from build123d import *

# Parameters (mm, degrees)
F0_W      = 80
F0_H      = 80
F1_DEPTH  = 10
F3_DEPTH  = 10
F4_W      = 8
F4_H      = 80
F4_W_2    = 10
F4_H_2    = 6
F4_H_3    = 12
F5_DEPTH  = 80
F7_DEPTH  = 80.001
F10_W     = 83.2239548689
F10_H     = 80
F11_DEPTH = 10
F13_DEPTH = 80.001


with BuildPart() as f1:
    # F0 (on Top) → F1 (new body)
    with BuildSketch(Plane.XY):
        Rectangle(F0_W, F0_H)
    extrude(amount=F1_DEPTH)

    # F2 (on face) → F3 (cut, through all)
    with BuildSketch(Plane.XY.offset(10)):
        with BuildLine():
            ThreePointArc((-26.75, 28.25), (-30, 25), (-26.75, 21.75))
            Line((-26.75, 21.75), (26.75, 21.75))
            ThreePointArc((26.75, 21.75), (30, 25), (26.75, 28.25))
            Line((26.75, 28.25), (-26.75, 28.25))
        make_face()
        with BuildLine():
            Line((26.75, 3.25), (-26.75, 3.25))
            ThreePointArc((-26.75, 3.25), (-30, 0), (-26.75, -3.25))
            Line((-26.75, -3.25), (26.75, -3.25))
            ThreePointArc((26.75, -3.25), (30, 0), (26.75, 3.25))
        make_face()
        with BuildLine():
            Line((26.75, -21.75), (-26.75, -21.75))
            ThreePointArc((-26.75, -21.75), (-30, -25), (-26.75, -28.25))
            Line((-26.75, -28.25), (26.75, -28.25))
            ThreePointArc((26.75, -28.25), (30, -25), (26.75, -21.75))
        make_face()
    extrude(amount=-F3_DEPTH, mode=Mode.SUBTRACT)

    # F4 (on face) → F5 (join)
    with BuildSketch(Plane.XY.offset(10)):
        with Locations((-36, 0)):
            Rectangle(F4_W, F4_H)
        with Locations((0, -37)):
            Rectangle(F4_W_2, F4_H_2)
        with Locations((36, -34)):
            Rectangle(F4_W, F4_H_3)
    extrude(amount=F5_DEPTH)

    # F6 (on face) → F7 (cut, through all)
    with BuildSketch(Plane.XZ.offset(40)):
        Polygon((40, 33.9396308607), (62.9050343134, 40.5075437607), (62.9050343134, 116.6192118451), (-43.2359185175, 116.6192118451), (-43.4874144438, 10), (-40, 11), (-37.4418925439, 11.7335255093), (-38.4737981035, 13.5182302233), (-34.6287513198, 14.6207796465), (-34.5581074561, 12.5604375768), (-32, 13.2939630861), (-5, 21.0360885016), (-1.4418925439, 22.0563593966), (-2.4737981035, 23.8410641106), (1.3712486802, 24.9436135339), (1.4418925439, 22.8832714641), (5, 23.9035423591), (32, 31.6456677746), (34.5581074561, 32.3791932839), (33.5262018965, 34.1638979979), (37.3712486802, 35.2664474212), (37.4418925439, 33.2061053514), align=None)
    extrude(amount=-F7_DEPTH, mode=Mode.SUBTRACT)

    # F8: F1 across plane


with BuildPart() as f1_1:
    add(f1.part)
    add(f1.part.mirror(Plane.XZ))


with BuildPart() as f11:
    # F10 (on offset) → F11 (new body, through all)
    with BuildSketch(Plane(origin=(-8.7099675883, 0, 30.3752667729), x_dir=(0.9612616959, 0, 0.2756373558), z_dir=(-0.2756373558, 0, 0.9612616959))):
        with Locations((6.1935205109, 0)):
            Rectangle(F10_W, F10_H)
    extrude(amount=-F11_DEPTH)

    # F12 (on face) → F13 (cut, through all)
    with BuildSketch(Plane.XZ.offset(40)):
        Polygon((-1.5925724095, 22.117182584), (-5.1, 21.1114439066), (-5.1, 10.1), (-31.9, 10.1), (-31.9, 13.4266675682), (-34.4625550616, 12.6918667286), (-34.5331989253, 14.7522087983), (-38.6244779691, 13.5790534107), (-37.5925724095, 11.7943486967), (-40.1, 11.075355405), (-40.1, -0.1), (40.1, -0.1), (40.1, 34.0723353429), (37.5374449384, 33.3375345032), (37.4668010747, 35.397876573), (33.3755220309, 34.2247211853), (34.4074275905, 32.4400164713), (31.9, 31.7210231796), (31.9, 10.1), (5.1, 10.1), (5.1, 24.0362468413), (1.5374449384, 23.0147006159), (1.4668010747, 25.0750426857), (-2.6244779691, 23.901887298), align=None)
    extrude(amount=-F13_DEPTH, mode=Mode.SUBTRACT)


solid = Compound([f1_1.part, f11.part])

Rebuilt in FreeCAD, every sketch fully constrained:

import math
import FreeCAD as App
import Part
import Sketcher
from FreeCAD import Vector
Q = App.Units.Quantity


def add_polygon(sketch, points):
    """Adds a closed chain of lines whose ends are joined by coincident constraints."""
    first, n = sketch.GeometryCount, len(points)
    for a, b in zip(points, points[1:] + points[:1]):
        sketch.addGeometry(Part.LineSegment(App.Vector(*a, 0), App.Vector(*b, 0)), False)
    for i in range(n):
        sketch.addConstraint(Sketcher.Constraint("Coincident", first + i, 2, first + (i + 1) % n, 1))

doc = App.newDocument("Part")
body = doc.addObject("PartDesign::Body", "Body")

sketch1 = body.newObject("Sketcher::SketchObject", "Sketch")
sketch1.AttachmentSupport = (doc.getObject("XY_Plane"), [""])
sketch1.MapMode = "FlatFace"
add_polygon(sketch1, [(-40, 40), (-40, -40), (40, -40), (40, 40)])
sketch1.addConstraint(Sketcher.Constraint("Vertical", 0))
sketch1.addConstraint(Sketcher.Constraint("Horizontal", 1))
sketch1.addConstraint(Sketcher.Constraint("Vertical", 2))
sketch1.addConstraint(Sketcher.Constraint("Horizontal", 3))
sketch1.addConstraint(Sketcher.Constraint("Symmetric", 0, 2, 2, 2, -1, 1))
sketch1.addConstraint(Sketcher.Constraint("Equal", 3, 0))
sketch1.addConstraint(Sketcher.Constraint("DistanceX", 1, 1, 1, 2, 80.0))
pad1 = body.newObject("PartDesign::Pad", "Pad")
pad1.Profile = sketch1
pad1.Length = 10

sketch2 = body.newObject("Sketcher::SketchObject", "Sketch001")
sketch2.AttachmentSupport = (doc.getObject("XY_Plane"), [""])
sketch2.MapMode = "FlatFace"
sketch2.AttachmentOffset = App.Placement(Vector(0, 0, 10), App.Rotation())
sketch2.addGeometry(Part.ArcOfCircle(Part.Circle(Vector(-26.8, 25, 0), Vector(0, 0, 1), 3.2), math.radians(90), math.radians(270)), False)
sketch2.addGeometry(Part.LineSegment(Vector(-26.8, 21.8, 0), Vector(26.8, 21.8, 0)), False)
sketch2.addGeometry(Part.ArcOfCircle(Part.Circle(Vector(26.8, 25, 0), Vector(0, 0, 1), 3.2), math.radians(-90), math.radians(90)), False)
sketch2.addGeometry(Part.LineSegment(Vector(26.8, 28.2, 0), Vector(-26.8, 28.2, 0)), False)
sketch2.addGeometry(Part.LineSegment(Vector(26.8, 3.2, 0), Vector(-26.8, 3.2, 0)), False)
sketch2.addGeometry(Part.ArcOfCircle(Part.Circle(Vector(-26.8, 0, 0), Vector(0, 0, 1), 3.2), math.radians(90), math.radians(270)), False)
sketch2.addGeometry(Part.LineSegment(Vector(-26.8, -3.2, 0), Vector(26.8, -3.2, 0)), False)
sketch2.addGeometry(Part.ArcOfCircle(Part.Circle(Vector(26.8, 0, 0), Vector(0, 0, 1), 3.2), math.radians(-90), math.radians(90)), False)
sketch2.addGeometry(Part.LineSegment(Vector(26.8, -21.8, 0), Vector(-26.8, -21.8, 0)), False)
sketch2.addGeometry(Part.ArcOfCircle(Part.Circle(Vector(-26.8, -25, 0), Vector(0, 0, 1), 3.2), math.radians(90), math.radians(270)), False)
sketch2.addGeometry(Part.LineSegment(Vector(-26.8, -28.2, 0), Vector(26.8, -28.2, 0)), False)
sketch2.addGeometry(Part.ArcOfCircle(Part.Circle(Vector(26.8, -25, 0), Vector(0, 0, 1), 3.2), math.radians(-90), math.radians(90)), False)
sketch2.addConstraint(Sketcher.Constraint("Tangent", 0, 2, 1, 1))
sketch2.addConstraint(Sketcher.Constraint("Tangent", 1, 2, 2, 1))
sketch2.addConstraint(Sketcher.Constraint("Tangent", 2, 2, 3, 1))
sketch2.addConstraint(Sketcher.Constraint("Tangent", 3, 2, 0, 1))
sketch2.addConstraint(Sketcher.Constraint("Tangent", 4, 2, 5, 1))
sketch2.addConstraint(Sketcher.Constraint("Tangent", 5, 2, 6, 1))
sketch2.addConstraint(Sketcher.Constraint("Tangent", 6, 2, 7, 1))
sketch2.addConstraint(Sketcher.Constraint("Tangent", 7, 2, 4, 1))
sketch2.addConstraint(Sketcher.Constraint("Tangent", 8, 2, 9, 1))
sketch2.addConstraint(Sketcher.Constraint("Tangent", 9, 2, 10, 1))
sketch2.addConstraint(Sketcher.Constraint("Tangent", 10, 2, 11, 1))
sketch2.addConstraint(Sketcher.Constraint("Tangent", 11, 2, 8, 1))
sketch2.addConstraint(Sketcher.Constraint("Horizontal", 1))
sketch2.addConstraint(Sketcher.Constraint("Horizontal", 3))
sketch2.addConstraint(Sketcher.Constraint("Horizontal", 4))
sketch2.addConstraint(Sketcher.Constraint("Horizontal", 6))
sketch2.addConstraint(Sketcher.Constraint("Horizontal", 8))
sketch2.addConstraint(Sketcher.Constraint("Horizontal", 10))
sketch2.addConstraint(Sketcher.Constraint("Equal", 2, 5))
sketch2.addConstraint(Sketcher.Constraint("Equal", 7, 9))
sketch2.addConstraint(Sketcher.Constraint("Symmetric", 5, 3, 7, 3, -1, 1))
sketch2.addConstraint(Sketcher.Constraint("Symmetric", 2, 3, 9, 3, -1, 1))
sketch2.addConstraint(Sketcher.Constraint("Vertical", 0, 3, 5, 3))
sketch2.addConstraint(Sketcher.Constraint("Vertical", 2, 3, 7, 3))
sketch2.addConstraint(Sketcher.Constraint("Vertical", 7, 3, 11, 3))
sketch2.addConstraint(Sketcher.Constraint("Radius", 0, 3.25))
sketch2.addConstraint(Sketcher.Constraint("DistanceX", 1, 1, 1, 2, 53.5))
sketch2.addConstraint(Sketcher.Constraint("DistanceY", -1, 1, 0, 3, 25.0))
pocket1 = body.newObject("PartDesign::Pocket", "Pocket")
pocket1.Profile = sketch2
pocket1.Type = "ThroughAll"

sketch3 = body.newObject("Sketcher::SketchObject", "Sketch002")
sketch3.AttachmentSupport = (doc.getObject("XY_Plane"), [""])
sketch3.MapMode = "FlatFace"
sketch3.AttachmentOffset = App.Placement(Vector(0, 0, 10), App.Rotation())
add_polygon(sketch3, [(-40, 40), (-40, -40), (-32, -40), (-32, 40)])
add_polygon(sketch3, [(-5, -34), (-5, -40), (5, -40), (5, -34)])
add_polygon(sketch3, [(32, -28), (32, -40), (40, -40), (40, -28)])
sketch3.addConstraint(Sketcher.Constraint("Vertical", 0))
sketch3.addConstraint(Sketcher.Constraint("Horizontal", 1))
sketch3.addConstraint(Sketcher.Constraint("Vertical", 2))
sketch3.addConstraint(Sketcher.Constraint("Horizontal", 3))
sketch3.addConstraint(Sketcher.Constraint("Vertical", 4))
sketch3.addConstraint(Sketcher.Constraint("Horizontal", 5))
sketch3.addConstraint(Sketcher.Constraint("Vertical", 6))
sketch3.addConstraint(Sketcher.Constraint("Horizontal", 7))
sketch3.addConstraint(Sketcher.Constraint("Vertical", 8))
sketch3.addConstraint(Sketcher.Constraint("Horizontal", 9))
sketch3.addConstraint(Sketcher.Constraint("Vertical", 10))
sketch3.addConstraint(Sketcher.Constraint("Horizontal", 11))
sketch3.addConstraint(Sketcher.Constraint("Symmetric", 2, 2, 8, 2, -1, 1))
sketch3.addConstraint(Sketcher.Constraint("Symmetric", 0, 2, 9, 2, -2))
sketch3.addConstraint(Sketcher.Constraint("Horizontal", 1, 2, 4, 2))
sketch3.addConstraint(Sketcher.Constraint("DistanceX", 1, 1, 1, 2, 8.0))
sketch3.addConstraint(Sketcher.Constraint("DistanceX", 5, 1, 5, 2, 10.0))
sketch3.addConstraint(Sketcher.Constraint("DistanceY", 0, 2, 0, 1, 80.0))
sketch3.addConstraint(Sketcher.Constraint("DistanceY", 4, 2, 4, 1, 6.0))
sketch3.addConstraint(Sketcher.Constraint("DistanceY", 8, 2, 8, 1, 12.0))
sketch3.addConstraint(Sketcher.Constraint("DistanceX", 0, 2, -1, 1, 40.0))
sketch3.addConstraint(Sketcher.Constraint("DistanceX", 4, 2, -1, 1, 5.0))
pad2 = body.newObject("PartDesign::Pad", "Pad001")
pad2.Profile = sketch3
pad2.Length = 80

sketch4 = body.newObject("Sketcher::SketchObject", "Sketch003")
sketch4.AttachmentSupport = (doc.getObject("XZ_Plane"), [""])
sketch4.MapMode = "FlatFace"
sketch4.AttachmentOffset = App.Placement(Vector(0, 0, 40), App.Rotation())
add_polygon(sketch4, [(40, 33.9), (62.9, 40.5), (62.9, 116.6), (-43.2, 116.6), (-43.5, 10), (-40, 11), (-37.4, 11.7), (-38.5, 13.5), (-34.6, 14.6), (-34.6, 12.6), (-32, 13.3), (-5, 21), (-1.4, 22.1), (-2.5, 23.8), (1.4, 24.9), (1.4, 22.9), (5, 23.9), (32, 31.6), (34.6, 32.4), (33.5, 34.2), (37.4, 35.3), (37.4, 33.2)])
sketch4.addConstraint(Sketcher.Constraint("Vertical", 1))
sketch4.addConstraint(Sketcher.Constraint("Horizontal", 2))
sketch4.addConstraint(Sketcher.Constraint("Parallel", 0, 4))
sketch4.addConstraint(Sketcher.Constraint("Parallel", 4, 5))
sketch4.addConstraint(Sketcher.Constraint("Parallel", 5, 7))
sketch4.addConstraint(Sketcher.Constraint("Parallel", 7, 9))
sketch4.addConstraint(Sketcher.Constraint("Parallel", 9, 10))
sketch4.addConstraint(Sketcher.Constraint("Parallel", 10, 11))
sketch4.addConstraint(Sketcher.Constraint("Parallel", 6, 12))
sketch4.addConstraint(Sketcher.Constraint("Parallel", 11, 13))
sketch4.addConstraint(Sketcher.Constraint("Parallel", 8, 14))
sketch4.addConstraint(Sketcher.Constraint("Parallel", 13, 15))
sketch4.addConstraint(Sketcher.Constraint("Parallel", 15, 16))
sketch4.addConstraint(Sketcher.Constraint("Parallel", 16, 17))
sketch4.addConstraint(Sketcher.Constraint("Parallel", 12, 18))
sketch4.addConstraint(Sketcher.Constraint("Parallel", 17, 19))
sketch4.addConstraint(Sketcher.Constraint("Parallel", 14, 20))
sketch4.addConstraint(Sketcher.Constraint("Parallel", 19, 21))
sketch4.addConstraint(Sketcher.Constraint("Equal", 6, 8))
sketch4.addConstraint(Sketcher.Constraint("Equal", 5, 9))
sketch4.addConstraint(Sketcher.Constraint("Equal", 8, 12))
sketch4.addConstraint(Sketcher.Constraint("Equal", 7, 13))
sketch4.addConstraint(Sketcher.Constraint("Equal", 12, 14))
sketch4.addConstraint(Sketcher.Constraint("Equal", 11, 15))
sketch4.addConstraint(Sketcher.Constraint("Equal", 10, 16))
sketch4.addConstraint(Sketcher.Constraint("Equal", 9, 17))
sketch4.addConstraint(Sketcher.Constraint("Equal", 14, 18))
sketch4.addConstraint(Sketcher.Constraint("Equal", 13, 19))
sketch4.addConstraint(Sketcher.Constraint("Equal", 18, 20))
sketch4.addConstraint(Sketcher.Constraint("Equal", 17, 21))
sketch4.addConstraint(Sketcher.Constraint("Angle", 0, Q("16 deg")))
sketch4.addConstraint(Sketcher.Constraint("Distance", 7, 4.0))
sketch4.addConstraint(Sketcher.Constraint("DistanceY", -1, 1, 3, 2, 10.0))
sketch4.addConstraint(Sketcher.Constraint("DistanceX", 4, 2, -1, 1, 40.0))
sketch4.addConstraint(Sketcher.Constraint("DistanceY", -1, 1, 4, 2, 11.0))
sketch4.addConstraint(Sketcher.Constraint("DistanceX", 9, 2, -1, 1, 32.0))
sketch4.addConstraint(Sketcher.Constraint("DistanceX", 10, 2, -1, 1, 5.0))
sketch4.addConstraint(Sketcher.Constraint("DistanceX", -1, 1, 15, 2, 5.0))
sketch4.addConstraint(Sketcher.Constraint("DistanceY", 1, 1, 1, 2, 76.111668))
sketch4.addConstraint(Sketcher.Constraint("DistanceX", 6, 2, -1, 1, 38.473798))
sketch4.addConstraint(Sketcher.Constraint("DistanceY", 9, 2, 12, 2, 10.547101))
sketch4.addConstraint(Sketcher.Constraint("Distance", 3, 106.619508))
sketch4.addConstraint(Sketcher.Constraint("DistanceX", 2, 2, 2, 1, 106.140953))
sketch4.addConstraint(Sketcher.Constraint("DistanceY", -1, 1, 11, 2, 22.056359))
pocket2 = body.newObject("PartDesign::Pocket", "Pocket001")
pocket2.Profile = sketch4
pocket2.Type = "ThroughAll"
body2 = doc.addObject("PartDesign::Body", "Body001")
doc.recompute()

body2.BaseFeature = body
doc.recompute()

mirroring = doc.addObject("Part::Mirroring", "Mirroring")
mirroring.Source = body
mirroring.Base = Vector(0, 0, 0)
mirroring.Normal = Vector(0, -1, 0)
body3 = doc.addObject("PartDesign::Body", "Body002")
body3.BaseFeature = mirroring
boolean = body2.newObject("PartDesign::Boolean", "Boolean")
boolean.Type = "Fuse"
boolean.addObjects([body3])
doc.recompute()
body4 = doc.addObject("PartDesign::Body", "Body003")

sketch5 = body4.newObject("Sketcher::SketchObject", "Sketch004")
sketch5.Placement = App.Placement(Vector(-8.709968, 0, 30.375267), App.Rotation(Vector(0.961261696, 0, 0.275637356), Vector(0, 1, 0), Vector(-0.275637356, 0, 0.961261696), "ZXY"))
add_polygon(sketch5, [(-35, 40), (-35, -40), (48, -40), (48, 40)])
sketch5.addConstraint(Sketcher.Constraint("Vertical", 0))
sketch5.addConstraint(Sketcher.Constraint("Horizontal", 1))
sketch5.addConstraint(Sketcher.Constraint("Vertical", 2))
sketch5.addConstraint(Sketcher.Constraint("Horizontal", 3))
sketch5.addConstraint(Sketcher.Constraint("DistanceY", 0, 2, 0, 1, 80.0))
sketch5.addConstraint(Sketcher.Constraint("DistanceY", 0, 2, -1, 1, 40.0))
sketch5.addConstraint(Sketcher.Constraint("DistanceX", 1, 1, 1, 2, 83.223955))
sketch5.addConstraint(Sketcher.Constraint("DistanceX", 0, 2, -1, 1, 35.418457))
pad3 = body4.newObject("PartDesign::Pad", "Pad002")
pad3.Profile = sketch5
pad3.Length = 10
pad3.Reversed = True

sketch6 = body4.newObject("Sketcher::SketchObject", "Sketch005")
sketch6.AttachmentSupport = (doc.getObject("XZ_Plane003"), [""])
sketch6.MapMode = "FlatFace"
sketch6.AttachmentOffset = App.Placement(Vector(0, 0, 40), App.Rotation())
add_polygon(sketch6, [(-1.6, 22.1), (-5.1, 21.1), (-5.1, 10.1), (-31.9, 10.1), (-31.9, 13.4), (-34.5, 12.7), (-34.5, 14.8), (-38.6, 13.6), (-37.6, 11.8), (-40.1, 11.1), (-40.1, -0.1), (40.1, -0.1), (40.1, 34.1), (37.5, 33.3), (37.5, 35.4), (33.4, 34.2), (34.4, 32.4), (31.9, 31.7), (31.9, 10.1), (5.1, 10.1), (5.1, 24), (1.5, 23), (1.5, 25.1), (-2.6, 23.9)])
sketch6.addConstraint(Sketcher.Constraint("Vertical", 1))
sketch6.addConstraint(Sketcher.Constraint("Horizontal", 2))
sketch6.addConstraint(Sketcher.Constraint("Vertical", 3))
sketch6.addConstraint(Sketcher.Constraint("Vertical", 9))
sketch6.addConstraint(Sketcher.Constraint("Horizontal", 10))
sketch6.addConstraint(Sketcher.Constraint("Vertical", 11))
sketch6.addConstraint(Sketcher.Constraint("Vertical", 17))
sketch6.addConstraint(Sketcher.Constraint("Horizontal", 18))
sketch6.addConstraint(Sketcher.Constraint("Vertical", 19))
sketch6.addConstraint(Sketcher.Constraint("Symmetric", 2, 2, 17, 2, -2))
sketch6.addConstraint(Sketcher.Constraint("Parallel", 0, 4))
sketch6.addConstraint(Sketcher.Constraint("Parallel", 4, 6))
sketch6.addConstraint(Sketcher.Constraint("Parallel", 6, 8))
sketch6.addConstraint(Sketcher.Constraint("Parallel", 8, 12))
sketch6.addConstraint(Sketcher.Constraint("Parallel", 5, 13))
sketch6.addConstraint(Sketcher.Constraint("Parallel", 12, 14))
sketch6.addConstraint(Sketcher.Constraint("Parallel", 7, 15))
sketch6.addConstraint(Sketcher.Constraint("Parallel", 14, 16))
sketch6.addConstraint(Sketcher.Constraint("Parallel", 16, 20))
sketch6.addConstraint(Sketcher.Constraint("Parallel", 13, 21))
sketch6.addConstraint(Sketcher.Constraint("Parallel", 20, 22))
sketch6.addConstraint(Sketcher.Constraint("Parallel", 15, 23))
sketch6.addConstraint(Sketcher.Constraint("Equal", 2, 18))
sketch6.addConstraint(Sketcher.Constraint("Equal", 5, 7))
sketch6.addConstraint(Sketcher.Constraint("Equal", 4, 12))
sketch6.addConstraint(Sketcher.Constraint("Equal", 7, 13))
sketch6.addConstraint(Sketcher.Constraint("Equal", 6, 14))
sketch6.addConstraint(Sketcher.Constraint("Equal", 13, 15))
sketch6.addConstraint(Sketcher.Constraint("Equal", 8, 16))
sketch6.addConstraint(Sketcher.Constraint("Equal", 15, 21))
sketch6.addConstraint(Sketcher.Constraint("Equal", 14, 22))
sketch6.addConstraint(Sketcher.Constraint("Equal", 21, 23))
sketch6.addConstraint(Sketcher.Constraint("Angle", 0, Q("-164 deg")))
sketch6.addConstraint(Sketcher.Constraint("DistanceX", 2, 2, 2, 1, 26.8))
sketch6.addConstraint(Sketcher.Constraint("DistanceX", 10, 1, 10, 2, 80.2))
sketch6.addConstraint(Sketcher.Constraint("DistanceX", 2, 2, 10, 2, 72.0))
sketch6.addConstraint(Sketcher.Constraint("DistanceY", -1, 1, 1, 2, 10.1))
sketch6.addConstraint(Sketcher.Constraint("DistanceY", 9, 2, -1, 1, 0.1))
sketch6.addConstraint(Sketcher.Constraint("DistanceX", 5, 2, -1, 1, 34.533199))
sketch6.addConstraint(Sketcher.Constraint("DistanceY", -1, 1, 20, 2, 23.014701))
sketch6.addConstraint(Sketcher.Constraint("DistanceX", -1, 1, 21, 2, 1.466801))
sketch6.addConstraint(Sketcher.Constraint("DistanceY", 4, 2, 3, 2, 0.734801))
sketch6.addConstraint(Sketcher.Constraint("DistanceY", 8, 2, 6, 2, 2.503698))
sketch6.addConstraint(Sketcher.Constraint("DistanceY", 0, 2, 21, 2, 3.963599))
sketch6.addConstraint(Sketcher.Constraint("DistanceY", 1, 2, 1, 1, 11.011444))
sketch6.addConstraint(Sketcher.Constraint("DistanceY", 3, 1, 3, 2, 3.326668))
sketch6.addConstraint(Sketcher.Constraint("DistanceY", 11, 1, 11, 2, 34.172335))
pocket3 = body4.newObject("PartDesign::Pocket", "Pocket002")
pocket3.Profile = sketch6
pocket3.Type = "ThroughAll"
mirroring.Visibility = False

doc.recompute()
